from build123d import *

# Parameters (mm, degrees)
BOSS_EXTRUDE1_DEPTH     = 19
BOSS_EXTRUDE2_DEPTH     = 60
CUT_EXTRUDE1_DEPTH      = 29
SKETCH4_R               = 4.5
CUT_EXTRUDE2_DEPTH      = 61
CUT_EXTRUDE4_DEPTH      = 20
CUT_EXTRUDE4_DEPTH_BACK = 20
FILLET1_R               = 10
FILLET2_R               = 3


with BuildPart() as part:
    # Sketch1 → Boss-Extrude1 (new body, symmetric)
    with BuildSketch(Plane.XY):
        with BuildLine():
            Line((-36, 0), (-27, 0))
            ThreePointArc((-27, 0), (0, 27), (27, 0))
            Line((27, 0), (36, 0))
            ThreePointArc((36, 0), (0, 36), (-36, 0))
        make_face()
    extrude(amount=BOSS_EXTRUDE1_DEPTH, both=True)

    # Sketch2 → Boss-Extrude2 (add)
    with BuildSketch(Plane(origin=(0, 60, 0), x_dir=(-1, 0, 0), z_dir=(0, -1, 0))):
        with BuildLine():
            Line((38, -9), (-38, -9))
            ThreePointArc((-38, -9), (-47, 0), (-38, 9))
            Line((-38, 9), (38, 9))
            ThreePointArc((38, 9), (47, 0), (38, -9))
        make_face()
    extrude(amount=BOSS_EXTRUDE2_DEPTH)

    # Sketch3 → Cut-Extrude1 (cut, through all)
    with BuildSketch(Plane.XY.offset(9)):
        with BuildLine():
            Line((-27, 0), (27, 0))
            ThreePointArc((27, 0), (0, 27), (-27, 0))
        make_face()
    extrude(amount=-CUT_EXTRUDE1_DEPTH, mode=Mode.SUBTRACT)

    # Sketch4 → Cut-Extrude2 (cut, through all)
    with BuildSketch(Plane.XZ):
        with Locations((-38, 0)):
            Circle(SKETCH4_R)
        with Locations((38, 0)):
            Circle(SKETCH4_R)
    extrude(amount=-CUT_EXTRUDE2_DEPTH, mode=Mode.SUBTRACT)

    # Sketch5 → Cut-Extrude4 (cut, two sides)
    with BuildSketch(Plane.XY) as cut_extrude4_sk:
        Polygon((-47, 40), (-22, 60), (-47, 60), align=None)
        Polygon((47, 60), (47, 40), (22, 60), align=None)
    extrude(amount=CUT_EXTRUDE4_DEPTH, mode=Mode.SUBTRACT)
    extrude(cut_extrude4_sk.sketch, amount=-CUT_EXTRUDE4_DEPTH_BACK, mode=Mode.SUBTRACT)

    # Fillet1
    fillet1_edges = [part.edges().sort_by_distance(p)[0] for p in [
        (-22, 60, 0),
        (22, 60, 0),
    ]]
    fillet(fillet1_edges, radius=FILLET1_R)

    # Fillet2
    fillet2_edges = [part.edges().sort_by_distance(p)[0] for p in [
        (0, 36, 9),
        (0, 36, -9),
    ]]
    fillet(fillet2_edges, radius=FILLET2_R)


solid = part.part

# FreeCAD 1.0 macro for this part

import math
import FreeCAD as App
import Part
import Sketcher

V = App.Vector


def edges_at(feature, points):
    """Names of the edges that pass closest to the given points."""
    edges = feature.Shape.Edges
    near = lambda p: min(range(len(edges)), key=lambda i: edges[i].distToShape(Part.Vertex(*p))[0])
    return sorted({f"Edge{near(p) + 1}" for p in points})


def add_polygon(sketch, points):
    """Adds a closed chain of lines whose ends are joined by coincident constraints."""
    first, n = sketch.GeometryCount, len(points)
    for a, b in zip(points, points[1:] + points[:1]):
        sketch.addGeometry(Part.LineSegment(App.Vector(*a, 0), App.Vector(*b, 0)), False)
    for i in range(n):
        sketch.addConstraint(Sketcher.Constraint("Coincident", first + i, 2, first + (i + 1) % n, 1))

doc = App.newDocument("Part")
body = doc.addObject("PartDesign::Body", "Body")

sketch1 = doc.addObject("Sketcher::SketchObject", "Sketch")
body.addObject(sketch1)
sketch1.AttachmentSupport = (doc.XY_Plane, [""])
sketch1.MapMode = "FlatFace"
sketch1.addGeometry([
    Part.LineSegment(V(-36, 0, 0), V(-27, 0, 0)),
    Part.ArcOfCircle(Part.Circle(V(0, 0, 0), V(0, 0, 1), 27), math.radians(0), math.radians(180)),
    Part.LineSegment(V(27, 0, 0), V(36, 0, 0)),
    Part.ArcOfCircle(Part.Circle(V(0, 0, 0), V(0, 0, 1), 36), math.radians(0), math.radians(180)),
], False)
sketch1.addConstraint([
    Sketcher.Constraint("Coincident", 0, 2, 1, 2),
    Sketcher.Constraint("Coincident", 1, 1, 2, 1),
    Sketcher.Constraint("Coincident", 2, 2, 3, 1),
    Sketcher.Constraint("Coincident", 3, 2, 0, 1),
    Sketcher.Constraint("Horizontal", 0),
    Sketcher.Constraint("Horizontal", 2),
    Sketcher.Constraint("Coincident", 1, 3, -1, 1),
    Sketcher.Constraint("Coincident", 3, 3, -1, 1),
    Sketcher.Constraint("PointOnObject", 0, 2, -1),
    Sketcher.Constraint("PointOnObject", 1, 1, -1),
    Sketcher.Constraint("Radius", 1, 27.0),
    Sketcher.Constraint("Radius", 3, 36.0),
])
pad1 = doc.addObject("PartDesign::Pad", "Pad")
body.addObject(pad1)
pad1.Profile = sketch1
pad1.Length = 38
pad1.Midplane = True

sketch2 = doc.addObject("Sketcher::SketchObject", "Sketch001")
body.addObject(sketch2)
sketch2.AttachmentSupport = (doc.XZ_Plane, [""])
sketch2.MapMode = "FlatFace"
sketch2.AttachmentOffset = App.Placement(V(0, 0, -60), App.Rotation())
sketch2.addGeometry([
    Part.LineSegment(V(38, 9, 0), V(-38, 9, 0)),
    Part.ArcOfCircle(Part.Circle(V(-38, 0, 0), V(0, 0, 1), 9), math.radians(90), math.radians(270)),
    Part.LineSegment(V(-38, -9, 0), V(38, -9, 0)),
    Part.ArcOfCircle(Part.Circle(V(38, 0, 0), V(0, 0, 1), 9), math.radians(-90), math.radians(90)),
], False)
sketch2.addConstraint([
    Sketcher.Constraint("Tangent", 0, 2, 1, 1),
    Sketcher.Constraint("Tangent", 1, 2, 2, 1),
    Sketcher.Constraint("Tangent", 2, 2, 3, 1),
    Sketcher.Constraint("Tangent", 3, 2, 0, 1),
    Sketcher.Constraint("Horizontal", 0),
    Sketcher.Constraint("Horizontal", 2),
    Sketcher.Constraint("Symmetric", 1, 3, 3, 3, -1, 1),
    Sketcher.Constraint("Radius", 1, 9.0),
    Sketcher.Constraint("DistanceX", 0, 2, 0, 1, 76.0),
])
pad2 = doc.addObject("PartDesign::Pad", "Pad001")
body.addObject(pad2)
pad2.Profile = sketch2
pad2.Length = 60

sketch3 = doc.addObject("Sketcher::SketchObject", "Sketch002")
body.addObject(sketch3)
sketch3.AttachmentSupport = (doc.XY_Plane, [""])
sketch3.MapMode = "FlatFace"
sketch3.AttachmentOffset = App.Placement(V(0, 0, 9), App.Rotation())
sketch3.addGeometry([
    Part.LineSegment(V(-27, 0, 0), V(27, 0, 0)),
    Part.ArcOfCircle(Part.Circle(V(0, 0, 0), V(0, 0, 1), 27), math.radians(0), math.radians(180)),
], False)
sketch3.addConstraint([
    Sketcher.Constraint("Coincident", 0, 1, 1, 2),
    Sketcher.Constraint("Coincident", 1, 1, 0, 2),
    Sketcher.Constraint("Horizontal", 0),
    Sketcher.Constraint("Coincident", 1, 3, -1, 1),
    Sketcher.Constraint("PointOnObject", 0, 1, -1),
    Sketcher.Constraint("Radius", 1, 27.0),
])
pocket1 = doc.addObject("PartDesign::Pocket", "Pocket")
body.addObject(pocket1)
pocket1.Profile = sketch3
pocket1.Type = "ThroughAll"

sketch4 = doc.addObject("Sketcher::SketchObject", "Sketch003")
body.addObject(sketch4)
sketch4.AttachmentSupport = (doc.XZ_Plane, [""])
sketch4.MapMode = "FlatFace"
sketch4.addGeometry([
    Part.Circle(V(-38, 0, 0), V(0, 0, 1), 4.5),
    Part.Circle(V(38, 0, 0), V(0, 0, 1), 4.5),
], False)
sketch4.addConstraint([
    Sketcher.Constraint("Equal", 0, 1),
    Sketcher.Constraint("Symmetric", 0, 3, 1, 3, -1, 1),
    Sketcher.Constraint("PointOnObject", 0, 3, -1),
    Sketcher.Constraint("Diameter", 0, 9.0),
    Sketcher.Constraint("DistanceX", 0, 3, -1, 1, 38.0),
])
pocket2 = doc.addObject("PartDesign::Pocket", "Pocket001")
body.addObject(pocket2)
pocket2.Profile = sketch4
pocket2.Type = "ThroughAll"

sketch5 = doc.addObject("Sketcher::SketchObject", "Sketch004")
body.addObject(sketch5)
sketch5.AttachmentSupport = (doc.XY_Plane, [""])
sketch5.MapMode = "FlatFace"
add_polygon(sketch5, [(-47, 40), (-22, 60), (-47, 60)])
add_polygon(sketch5, [(47, 40), (47, 60), (22, 60)])
sketch5.addConstraint([
    Sketcher.Constraint("Horizontal", 1),
    Sketcher.Constraint("Vertical", 2),
    Sketcher.Constraint("Vertical", 3),
    Sketcher.Constraint("Horizontal", 4),
    Sketcher.Constraint("Symmetric", 1, 2, 3, 2, -2),
    Sketcher.Constraint("Horizontal", 2, 2, 5, 2),
    Sketcher.Constraint("Equal", 1, 4),
    Sketcher.Constraint("DistanceX", 1, 2, 1, 1, 25.0),
    Sketcher.Constraint("DistanceY", 2, 2, 2, 1, 20.0),
    Sketcher.Constraint("DistanceX", 0, 2, -1, 1, 22.0),
    Sketcher.Constraint("DistanceY", -1, 1, 0, 2, 60.0),
])
pocket3 = doc.addObject("PartDesign::Pocket", "Pocket002")
body.addObject(pocket3)
pocket3.Profile = sketch5
pocket3.Type = "ThroughAll"
pocket3.Midplane = True
doc.recompute()

fillet = doc.addObject("PartDesign::Fillet", "Fillet")
body.addObject(fillet)
fillet.Base = (pocket3, edges_at(pocket3, [(-22, 60, 0), (22, 60, 0)]))
fillet.Radius = 10
doc.recompute()

fillet2 = doc.addObject("PartDesign::Fillet", "Fillet001")
body.addObject(fillet2)
fillet2.Base = (fillet, edges_at(fillet, [(0, 36, 9), (0, 36, -9)]))
fillet2.Radius = 3

doc.recompute()
